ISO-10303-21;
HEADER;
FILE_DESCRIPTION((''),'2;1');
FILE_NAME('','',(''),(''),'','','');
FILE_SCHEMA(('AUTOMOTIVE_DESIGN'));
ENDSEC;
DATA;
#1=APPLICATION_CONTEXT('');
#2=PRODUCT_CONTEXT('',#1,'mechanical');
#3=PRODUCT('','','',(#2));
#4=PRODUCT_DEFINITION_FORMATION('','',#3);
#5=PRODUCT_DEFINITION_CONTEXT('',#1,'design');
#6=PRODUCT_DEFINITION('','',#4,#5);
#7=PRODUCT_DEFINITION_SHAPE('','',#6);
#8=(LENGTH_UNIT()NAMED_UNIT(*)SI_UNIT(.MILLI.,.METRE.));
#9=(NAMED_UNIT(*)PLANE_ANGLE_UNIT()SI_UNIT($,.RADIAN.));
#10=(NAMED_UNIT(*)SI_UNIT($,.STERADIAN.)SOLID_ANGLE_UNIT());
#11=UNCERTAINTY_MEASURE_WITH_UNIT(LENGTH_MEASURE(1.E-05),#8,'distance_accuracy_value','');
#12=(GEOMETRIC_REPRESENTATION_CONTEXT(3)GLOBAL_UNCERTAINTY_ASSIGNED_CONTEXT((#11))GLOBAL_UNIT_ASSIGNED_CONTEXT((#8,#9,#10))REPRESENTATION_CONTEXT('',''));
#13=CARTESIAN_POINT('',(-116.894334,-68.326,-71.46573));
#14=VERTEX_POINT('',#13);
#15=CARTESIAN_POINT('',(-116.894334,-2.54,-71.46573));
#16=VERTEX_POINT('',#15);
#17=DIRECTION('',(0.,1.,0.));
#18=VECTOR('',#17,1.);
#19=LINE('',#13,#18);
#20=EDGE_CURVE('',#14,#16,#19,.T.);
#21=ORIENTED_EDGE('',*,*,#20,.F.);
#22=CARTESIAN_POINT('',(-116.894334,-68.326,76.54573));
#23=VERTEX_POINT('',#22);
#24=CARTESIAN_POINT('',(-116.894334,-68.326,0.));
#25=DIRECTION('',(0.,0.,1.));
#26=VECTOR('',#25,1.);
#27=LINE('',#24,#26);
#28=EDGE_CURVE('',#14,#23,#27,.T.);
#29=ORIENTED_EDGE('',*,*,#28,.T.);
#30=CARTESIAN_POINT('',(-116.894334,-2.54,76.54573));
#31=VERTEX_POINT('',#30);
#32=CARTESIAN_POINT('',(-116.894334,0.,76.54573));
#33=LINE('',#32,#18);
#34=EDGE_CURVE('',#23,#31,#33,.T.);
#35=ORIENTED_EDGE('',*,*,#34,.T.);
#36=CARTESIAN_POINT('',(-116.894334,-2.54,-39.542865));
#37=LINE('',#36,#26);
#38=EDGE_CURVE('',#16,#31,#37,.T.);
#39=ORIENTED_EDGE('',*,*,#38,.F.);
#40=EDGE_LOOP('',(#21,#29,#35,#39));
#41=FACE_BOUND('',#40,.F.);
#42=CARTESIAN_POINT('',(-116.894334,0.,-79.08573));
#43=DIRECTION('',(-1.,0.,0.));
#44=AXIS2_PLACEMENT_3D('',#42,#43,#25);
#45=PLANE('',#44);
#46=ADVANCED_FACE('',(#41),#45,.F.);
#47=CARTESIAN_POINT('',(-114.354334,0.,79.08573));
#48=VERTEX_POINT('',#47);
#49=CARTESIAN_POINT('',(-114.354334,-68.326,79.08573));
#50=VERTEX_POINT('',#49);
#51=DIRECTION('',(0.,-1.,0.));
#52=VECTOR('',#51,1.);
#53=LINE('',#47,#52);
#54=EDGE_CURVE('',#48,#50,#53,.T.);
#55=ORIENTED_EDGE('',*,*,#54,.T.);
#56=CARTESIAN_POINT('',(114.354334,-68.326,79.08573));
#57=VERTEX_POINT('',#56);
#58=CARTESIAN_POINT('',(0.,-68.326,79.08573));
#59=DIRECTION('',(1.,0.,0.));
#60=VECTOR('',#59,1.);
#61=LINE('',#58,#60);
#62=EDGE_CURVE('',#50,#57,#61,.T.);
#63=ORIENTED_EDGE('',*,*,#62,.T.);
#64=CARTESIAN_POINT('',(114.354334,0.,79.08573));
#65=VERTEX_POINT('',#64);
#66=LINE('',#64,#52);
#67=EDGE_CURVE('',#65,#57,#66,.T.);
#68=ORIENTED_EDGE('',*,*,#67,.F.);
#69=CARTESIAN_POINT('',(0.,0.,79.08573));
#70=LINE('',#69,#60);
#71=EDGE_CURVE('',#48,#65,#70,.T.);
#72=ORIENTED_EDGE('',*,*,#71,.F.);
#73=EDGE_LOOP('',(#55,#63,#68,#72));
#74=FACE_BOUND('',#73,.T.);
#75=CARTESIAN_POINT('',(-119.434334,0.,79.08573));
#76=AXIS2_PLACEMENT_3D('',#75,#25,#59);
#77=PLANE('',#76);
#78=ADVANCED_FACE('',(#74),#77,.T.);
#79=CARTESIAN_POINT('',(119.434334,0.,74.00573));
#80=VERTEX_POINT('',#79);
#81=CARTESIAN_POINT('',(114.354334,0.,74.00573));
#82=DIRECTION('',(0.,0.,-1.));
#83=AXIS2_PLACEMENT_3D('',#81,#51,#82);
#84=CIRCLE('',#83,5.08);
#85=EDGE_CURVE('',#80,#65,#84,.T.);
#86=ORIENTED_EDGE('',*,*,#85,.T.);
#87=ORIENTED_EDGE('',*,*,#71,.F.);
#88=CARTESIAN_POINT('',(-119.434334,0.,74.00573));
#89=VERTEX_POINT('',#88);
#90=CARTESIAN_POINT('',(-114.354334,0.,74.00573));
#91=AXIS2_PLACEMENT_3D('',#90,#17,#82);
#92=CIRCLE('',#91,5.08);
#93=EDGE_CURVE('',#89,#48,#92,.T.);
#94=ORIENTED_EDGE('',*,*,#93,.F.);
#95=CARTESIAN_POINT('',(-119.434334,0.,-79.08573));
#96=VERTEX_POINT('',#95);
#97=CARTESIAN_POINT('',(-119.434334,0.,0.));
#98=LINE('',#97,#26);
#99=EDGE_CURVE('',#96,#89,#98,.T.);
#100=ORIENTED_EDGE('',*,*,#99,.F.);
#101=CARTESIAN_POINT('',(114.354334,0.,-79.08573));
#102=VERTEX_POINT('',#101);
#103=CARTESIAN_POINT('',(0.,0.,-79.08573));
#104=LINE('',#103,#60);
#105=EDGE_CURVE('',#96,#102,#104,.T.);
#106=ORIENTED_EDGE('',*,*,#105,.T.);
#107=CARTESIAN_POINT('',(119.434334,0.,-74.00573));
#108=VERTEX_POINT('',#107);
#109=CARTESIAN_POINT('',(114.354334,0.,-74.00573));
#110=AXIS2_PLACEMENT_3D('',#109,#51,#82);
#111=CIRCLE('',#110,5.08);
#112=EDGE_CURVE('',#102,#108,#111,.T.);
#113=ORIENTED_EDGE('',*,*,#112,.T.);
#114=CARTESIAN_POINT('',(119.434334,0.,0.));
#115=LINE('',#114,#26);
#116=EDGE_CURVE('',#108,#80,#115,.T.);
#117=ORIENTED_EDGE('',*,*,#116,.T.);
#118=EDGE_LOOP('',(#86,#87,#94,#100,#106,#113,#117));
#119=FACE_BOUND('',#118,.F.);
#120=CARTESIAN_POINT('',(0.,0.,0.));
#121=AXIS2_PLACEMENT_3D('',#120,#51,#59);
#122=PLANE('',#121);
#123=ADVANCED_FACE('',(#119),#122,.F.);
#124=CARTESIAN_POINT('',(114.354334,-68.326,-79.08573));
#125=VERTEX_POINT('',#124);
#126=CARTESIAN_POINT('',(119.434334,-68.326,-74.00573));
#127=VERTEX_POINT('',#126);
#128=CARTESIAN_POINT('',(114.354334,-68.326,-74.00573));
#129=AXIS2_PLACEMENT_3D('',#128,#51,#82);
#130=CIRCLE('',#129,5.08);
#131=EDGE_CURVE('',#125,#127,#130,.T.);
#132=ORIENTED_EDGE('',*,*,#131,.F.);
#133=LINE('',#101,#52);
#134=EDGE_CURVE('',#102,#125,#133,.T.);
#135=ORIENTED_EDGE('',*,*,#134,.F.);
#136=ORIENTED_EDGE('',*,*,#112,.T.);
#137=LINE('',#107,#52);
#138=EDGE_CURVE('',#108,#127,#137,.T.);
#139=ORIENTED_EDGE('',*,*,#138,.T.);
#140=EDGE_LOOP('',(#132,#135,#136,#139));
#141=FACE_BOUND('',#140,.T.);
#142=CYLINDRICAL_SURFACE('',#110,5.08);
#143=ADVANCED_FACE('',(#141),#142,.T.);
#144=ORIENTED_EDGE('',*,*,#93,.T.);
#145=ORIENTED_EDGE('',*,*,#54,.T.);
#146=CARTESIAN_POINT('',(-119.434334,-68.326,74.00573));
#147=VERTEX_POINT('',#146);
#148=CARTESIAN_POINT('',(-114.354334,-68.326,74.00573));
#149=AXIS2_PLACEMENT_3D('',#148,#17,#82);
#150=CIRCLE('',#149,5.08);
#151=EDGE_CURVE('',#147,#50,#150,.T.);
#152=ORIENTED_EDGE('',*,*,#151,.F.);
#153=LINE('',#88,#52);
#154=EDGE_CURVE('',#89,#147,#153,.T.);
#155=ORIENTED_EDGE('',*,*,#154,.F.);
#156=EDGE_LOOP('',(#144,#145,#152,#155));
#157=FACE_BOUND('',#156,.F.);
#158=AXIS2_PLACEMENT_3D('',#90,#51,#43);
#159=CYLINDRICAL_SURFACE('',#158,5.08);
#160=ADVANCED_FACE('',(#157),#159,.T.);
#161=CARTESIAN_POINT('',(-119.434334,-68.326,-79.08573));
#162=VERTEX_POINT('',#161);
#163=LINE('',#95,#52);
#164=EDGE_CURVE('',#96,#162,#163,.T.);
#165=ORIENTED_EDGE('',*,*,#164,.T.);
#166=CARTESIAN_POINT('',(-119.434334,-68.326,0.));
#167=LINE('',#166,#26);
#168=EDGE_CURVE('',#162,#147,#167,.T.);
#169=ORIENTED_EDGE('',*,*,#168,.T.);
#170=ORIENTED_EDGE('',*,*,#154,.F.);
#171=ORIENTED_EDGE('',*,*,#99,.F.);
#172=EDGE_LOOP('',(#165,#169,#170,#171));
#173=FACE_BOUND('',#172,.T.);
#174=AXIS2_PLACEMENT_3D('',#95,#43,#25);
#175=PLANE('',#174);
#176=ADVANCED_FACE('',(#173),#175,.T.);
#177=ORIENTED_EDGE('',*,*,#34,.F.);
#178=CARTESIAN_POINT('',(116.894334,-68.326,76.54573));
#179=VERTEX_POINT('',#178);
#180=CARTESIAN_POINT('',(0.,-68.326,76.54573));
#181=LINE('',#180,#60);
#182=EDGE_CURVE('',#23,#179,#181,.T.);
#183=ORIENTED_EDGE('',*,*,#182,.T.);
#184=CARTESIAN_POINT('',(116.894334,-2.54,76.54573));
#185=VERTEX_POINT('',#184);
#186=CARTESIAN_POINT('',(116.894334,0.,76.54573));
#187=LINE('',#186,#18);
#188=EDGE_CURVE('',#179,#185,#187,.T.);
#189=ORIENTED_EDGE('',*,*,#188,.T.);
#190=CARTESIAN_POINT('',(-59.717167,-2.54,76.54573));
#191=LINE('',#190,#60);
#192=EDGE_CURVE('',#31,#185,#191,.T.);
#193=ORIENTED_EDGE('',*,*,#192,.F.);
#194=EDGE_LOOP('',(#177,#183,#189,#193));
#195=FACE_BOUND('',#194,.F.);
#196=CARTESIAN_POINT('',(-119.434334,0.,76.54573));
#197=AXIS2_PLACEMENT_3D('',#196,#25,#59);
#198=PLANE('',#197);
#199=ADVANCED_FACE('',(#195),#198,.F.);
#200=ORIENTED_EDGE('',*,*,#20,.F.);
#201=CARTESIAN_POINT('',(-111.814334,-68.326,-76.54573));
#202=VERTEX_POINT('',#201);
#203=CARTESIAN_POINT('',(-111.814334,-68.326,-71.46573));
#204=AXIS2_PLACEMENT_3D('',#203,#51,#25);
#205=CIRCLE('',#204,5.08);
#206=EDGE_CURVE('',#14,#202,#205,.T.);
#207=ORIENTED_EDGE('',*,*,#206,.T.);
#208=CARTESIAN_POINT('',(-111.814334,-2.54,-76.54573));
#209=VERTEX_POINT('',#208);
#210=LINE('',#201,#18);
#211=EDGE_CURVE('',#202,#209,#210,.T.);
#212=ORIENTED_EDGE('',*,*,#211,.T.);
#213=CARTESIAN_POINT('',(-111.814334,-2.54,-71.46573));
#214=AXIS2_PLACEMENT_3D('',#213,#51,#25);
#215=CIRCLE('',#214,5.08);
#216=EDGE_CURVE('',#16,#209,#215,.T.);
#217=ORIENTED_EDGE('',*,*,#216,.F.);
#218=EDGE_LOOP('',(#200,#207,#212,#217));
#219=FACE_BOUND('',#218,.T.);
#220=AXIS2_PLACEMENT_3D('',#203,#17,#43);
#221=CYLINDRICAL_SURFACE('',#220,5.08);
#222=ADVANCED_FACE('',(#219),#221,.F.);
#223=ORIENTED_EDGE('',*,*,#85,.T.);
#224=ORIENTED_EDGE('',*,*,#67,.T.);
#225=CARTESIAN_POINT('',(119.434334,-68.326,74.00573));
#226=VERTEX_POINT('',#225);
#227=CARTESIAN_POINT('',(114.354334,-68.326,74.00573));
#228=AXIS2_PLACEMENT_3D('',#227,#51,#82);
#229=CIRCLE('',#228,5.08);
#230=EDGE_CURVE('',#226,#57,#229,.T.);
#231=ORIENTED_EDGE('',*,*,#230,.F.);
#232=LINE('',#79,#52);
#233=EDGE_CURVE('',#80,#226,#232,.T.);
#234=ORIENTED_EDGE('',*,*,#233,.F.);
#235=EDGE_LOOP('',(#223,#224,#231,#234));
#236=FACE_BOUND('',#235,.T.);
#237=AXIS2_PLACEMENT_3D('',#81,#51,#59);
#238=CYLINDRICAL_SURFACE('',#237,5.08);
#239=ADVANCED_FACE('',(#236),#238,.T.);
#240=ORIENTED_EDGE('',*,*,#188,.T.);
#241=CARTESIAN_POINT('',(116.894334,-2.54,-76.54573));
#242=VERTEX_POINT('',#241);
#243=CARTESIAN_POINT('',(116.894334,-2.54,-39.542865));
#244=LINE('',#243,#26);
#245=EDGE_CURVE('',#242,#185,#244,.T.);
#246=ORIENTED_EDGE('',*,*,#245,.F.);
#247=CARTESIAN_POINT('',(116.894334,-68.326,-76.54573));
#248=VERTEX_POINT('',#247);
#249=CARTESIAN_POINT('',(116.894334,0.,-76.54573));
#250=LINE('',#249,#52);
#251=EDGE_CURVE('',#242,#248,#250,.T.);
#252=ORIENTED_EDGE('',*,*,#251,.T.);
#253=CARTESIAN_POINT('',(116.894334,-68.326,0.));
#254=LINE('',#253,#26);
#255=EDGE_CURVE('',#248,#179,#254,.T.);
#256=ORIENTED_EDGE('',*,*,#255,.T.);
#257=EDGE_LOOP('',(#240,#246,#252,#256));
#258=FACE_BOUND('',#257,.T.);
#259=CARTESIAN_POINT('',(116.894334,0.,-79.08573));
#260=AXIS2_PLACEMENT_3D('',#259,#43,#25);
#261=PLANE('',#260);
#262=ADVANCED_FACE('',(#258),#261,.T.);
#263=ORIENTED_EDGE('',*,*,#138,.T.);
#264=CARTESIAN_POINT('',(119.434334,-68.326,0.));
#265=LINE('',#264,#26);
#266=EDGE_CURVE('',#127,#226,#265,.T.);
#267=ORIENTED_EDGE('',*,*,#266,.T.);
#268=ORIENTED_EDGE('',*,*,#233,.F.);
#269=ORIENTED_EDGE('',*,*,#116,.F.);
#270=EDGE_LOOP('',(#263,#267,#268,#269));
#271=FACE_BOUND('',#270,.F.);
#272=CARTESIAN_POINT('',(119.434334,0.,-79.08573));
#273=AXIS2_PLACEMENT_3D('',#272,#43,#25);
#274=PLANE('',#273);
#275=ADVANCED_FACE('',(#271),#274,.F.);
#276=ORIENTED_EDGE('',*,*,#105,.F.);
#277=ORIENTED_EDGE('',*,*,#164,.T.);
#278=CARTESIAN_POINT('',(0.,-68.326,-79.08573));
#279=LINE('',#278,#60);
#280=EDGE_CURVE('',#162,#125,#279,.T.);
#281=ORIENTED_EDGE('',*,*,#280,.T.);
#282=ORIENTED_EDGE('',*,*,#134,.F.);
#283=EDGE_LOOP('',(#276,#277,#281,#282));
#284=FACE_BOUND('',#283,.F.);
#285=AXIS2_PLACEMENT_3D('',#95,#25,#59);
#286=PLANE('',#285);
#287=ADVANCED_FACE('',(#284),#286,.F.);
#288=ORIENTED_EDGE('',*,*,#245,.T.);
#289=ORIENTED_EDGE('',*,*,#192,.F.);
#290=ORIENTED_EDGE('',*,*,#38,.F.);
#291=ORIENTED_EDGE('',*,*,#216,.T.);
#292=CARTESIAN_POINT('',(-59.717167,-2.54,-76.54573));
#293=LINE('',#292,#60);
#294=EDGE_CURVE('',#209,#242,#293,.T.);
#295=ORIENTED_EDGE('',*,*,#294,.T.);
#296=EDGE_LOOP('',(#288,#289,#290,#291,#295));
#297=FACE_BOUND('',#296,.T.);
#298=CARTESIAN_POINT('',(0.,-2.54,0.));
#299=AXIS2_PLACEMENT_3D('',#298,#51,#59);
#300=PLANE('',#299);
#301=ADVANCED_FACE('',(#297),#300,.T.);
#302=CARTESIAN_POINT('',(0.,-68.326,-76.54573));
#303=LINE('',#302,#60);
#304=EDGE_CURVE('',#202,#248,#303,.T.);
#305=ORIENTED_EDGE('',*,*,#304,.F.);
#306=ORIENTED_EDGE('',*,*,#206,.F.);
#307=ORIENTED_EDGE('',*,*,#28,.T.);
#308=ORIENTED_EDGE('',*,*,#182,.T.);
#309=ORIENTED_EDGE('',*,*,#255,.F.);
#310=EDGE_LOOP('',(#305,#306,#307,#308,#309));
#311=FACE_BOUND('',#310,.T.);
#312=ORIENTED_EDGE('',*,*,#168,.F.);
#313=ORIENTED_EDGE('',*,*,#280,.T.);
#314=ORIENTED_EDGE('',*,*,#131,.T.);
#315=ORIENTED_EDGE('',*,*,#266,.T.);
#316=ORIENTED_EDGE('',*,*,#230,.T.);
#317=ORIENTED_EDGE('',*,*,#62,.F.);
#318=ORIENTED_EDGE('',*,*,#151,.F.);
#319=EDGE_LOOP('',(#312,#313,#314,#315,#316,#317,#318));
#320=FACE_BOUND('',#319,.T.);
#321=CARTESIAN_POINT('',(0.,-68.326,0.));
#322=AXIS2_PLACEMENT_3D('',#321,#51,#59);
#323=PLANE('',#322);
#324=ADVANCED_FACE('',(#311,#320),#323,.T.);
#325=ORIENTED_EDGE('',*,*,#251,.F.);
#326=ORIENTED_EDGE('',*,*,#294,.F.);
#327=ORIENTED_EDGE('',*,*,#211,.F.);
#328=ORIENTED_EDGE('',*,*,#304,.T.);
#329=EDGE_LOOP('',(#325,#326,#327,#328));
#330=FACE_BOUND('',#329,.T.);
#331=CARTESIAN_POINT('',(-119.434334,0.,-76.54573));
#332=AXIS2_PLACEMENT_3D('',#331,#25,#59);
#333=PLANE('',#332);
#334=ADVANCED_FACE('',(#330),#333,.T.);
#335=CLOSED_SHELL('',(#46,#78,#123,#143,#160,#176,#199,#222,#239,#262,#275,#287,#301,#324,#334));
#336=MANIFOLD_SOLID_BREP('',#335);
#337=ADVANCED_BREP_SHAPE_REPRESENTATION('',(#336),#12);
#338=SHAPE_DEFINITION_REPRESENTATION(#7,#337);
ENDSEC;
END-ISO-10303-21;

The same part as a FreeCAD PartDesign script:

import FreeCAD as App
import Part
import Sketcher
from FreeCAD import Vector
Q = App.Units.Quantity


def edges_at(feature, points):
    """Names of the edges that pass closest to the given points."""
    edges = feature.Shape.Edges
    near = lambda p: min(range(len(edges)), key=lambda i: edges[i].distToShape(Part.Vertex(*p))[0])
    return sorted({f"Edge{near(p) + 1}" for p in points})


def faces_at(feature, points):
    """Names of the faces that lie closest to the given points."""
    faces = feature.Shape.Faces
    near = lambda p: min(range(len(faces)), key=lambda i: faces[i].distToShape(Part.Vertex(*p))[0])
    return sorted({f"Face{near(p) + 1}" for p in points})

doc = App.newDocument("Part")
body = doc.addObject("PartDesign::Body", "Body")

# Sketch on XZ plane
sketch1 = body.newObject("Sketcher::SketchObject", "Sketch")
sketch1.AttachmentSupport = (doc.getObject("XZ_Plane"), [""])
sketch1.MapMode = "FlatFace"
sketch1.addGeometry([
    Part.LineSegment(Vector(-119, 79, 0), Vector(-119, -79, 0)),
    Part.LineSegment(Vector(-119, -79, 0), Vector(119, -79, 0)),
    Part.LineSegment(Vector(119, -79, 0), Vector(119, 79, 0)),
    Part.LineSegment(Vector(119, 79, 0), Vector(-119, 79, 0)),
], False)
sketch1.addConstraint([
    Sketcher.Constraint("Coincident", 0, 2, 1, 1),
    Sketcher.Constraint("Coincident", 1, 2, 2, 1),
    Sketcher.Constraint("Coincident", 2, 2, 3, 1),
    Sketcher.Constraint("Coincident", 3, 2, 0, 1),
    Sketcher.Constraint("Vertical", 0),
    Sketcher.Constraint("Horizontal", 1),
    Sketcher.Constraint("Vertical", 2),
    Sketcher.Constraint("Horizontal", 3),
    Sketcher.Constraint("Symmetric", 0, 2, 2, 2, -1, 1),
    Sketcher.Constraint("DistanceX", 1, 1, 1, 2, 238.868669),
    Sketcher.Constraint("DistanceY", 0, 2, 0, 1, 158.17146),
])
pad1 = body.newObject("PartDesign::Pad", "Pad")
pad1.Profile = sketch1
pad1.Length = Q("2.69 in")
doc.recompute()

thickness = body.newObject("PartDesign::Thickness", "Thickness")
thickness.Base = (pad1, faces_at(pad1, [(0, -68.326, 0)]))
thickness.Value = Q("0.1 in")
thickness.Reversed = True
thickness.Join = "Arc"
doc.recompute()

fillet = body.newObject("PartDesign::Fillet", "Fillet")
fillet.Base = (thickness, edges_at(thickness, [
    (-119.434, -34.163, 79.086),
    (119.434, -34.163, 79.086),
    (119.434, -34.163, -79.086),
    (-116.894, -35.433, -76.546),
]))
fillet.Radius = Q("0.2 in")

doc.recompute()
